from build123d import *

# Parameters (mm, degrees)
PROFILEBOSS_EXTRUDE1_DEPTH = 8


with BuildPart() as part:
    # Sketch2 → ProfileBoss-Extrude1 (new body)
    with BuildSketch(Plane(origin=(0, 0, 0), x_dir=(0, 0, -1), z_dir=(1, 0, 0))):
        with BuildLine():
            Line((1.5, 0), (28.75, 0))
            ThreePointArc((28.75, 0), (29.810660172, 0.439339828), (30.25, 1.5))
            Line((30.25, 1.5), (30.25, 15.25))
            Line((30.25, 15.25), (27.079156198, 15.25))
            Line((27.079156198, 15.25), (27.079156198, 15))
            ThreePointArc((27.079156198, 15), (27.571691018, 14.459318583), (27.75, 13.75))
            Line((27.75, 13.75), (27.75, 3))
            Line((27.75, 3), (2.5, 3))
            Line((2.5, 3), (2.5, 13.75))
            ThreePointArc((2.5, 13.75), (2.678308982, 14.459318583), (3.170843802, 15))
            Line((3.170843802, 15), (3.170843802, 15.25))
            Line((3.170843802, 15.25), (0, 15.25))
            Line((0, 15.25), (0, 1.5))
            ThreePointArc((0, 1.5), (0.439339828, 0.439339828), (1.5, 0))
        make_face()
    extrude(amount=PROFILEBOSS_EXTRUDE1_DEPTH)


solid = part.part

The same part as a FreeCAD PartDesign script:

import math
import FreeCAD as App
import Part
import Sketcher

V = App.Vector

doc = App.newDocument("Part")
body = doc.addObject("PartDesign::Body", "Body")

# Sketch on YZ plane
sketch1 = body.newObject("Sketcher::SketchObject", "Sketch")
sketch1.AttachmentSupport = (doc.getObject("YZ_Plane"), [""])
sketch1.MapMode = "FlatFace"
sketch1.addGeometry([
    Part.LineSegment(V(0, -1.5, 0), V(0, -28.75, 0)),  # 0
    Part.ArcOfCircle(Part.Circle(V(1.5, -28.75, 0), V(0, 0, 1), 1.5), math.radians(180), math.radians(270)),  # 1
    Part.LineSegment(V(1.5, -30.25, 0), V(15.25, -30.25, 0)),  # 2
    Part.LineSegment(V(15.25, -30.25, 0), V(15.25, -27.08, 0)),  # 3
    Part.LineSegment(V(15.25, -27.08, 0), V(15, -27.08, 0)),  # 4
    Part.ArcOfCircle(Part.Circle(V(13.75, -26.25, 0), V(0, 0, 1), 1.5), math.radians(-90), math.radians(-34)),  # 5
    Part.LineSegment(V(13.75, -27.75, 0), V(3, -27.75, 0)),  # 6
    Part.LineSegment(V(3, -27.75, 0), V(3, -2.5, 0)),  # 7
    Part.LineSegment(V(3, -2.5, 0), V(13.75, -2.5, 0)),  # 8
    Part.ArcOfCircle(Part.Circle(V(13.75, -4, 0), V(0, 0, 1), 1.5), math.radians(34), math.radians(90)),  # 9
    Part.LineSegment(V(15, -3.17, 0), V(15.25, -3.17, 0)),  # 10
    Part.LineSegment(V(15.25, -3.17, 0), V(15.25, 0, 0)),  # 11
    Part.LineSegment(V(15.25, 0, 0), V(1.5, 0, 0)),  # 12
    Part.ArcOfCircle(Part.Circle(V(1.5, -1.5, 0), V(0, 0, 1), 1.5), math.radians(90), math.radians(180)),  # 13
], False)
sketch1.addConstraint([
    Sketcher.Constraint("Tangent", 0, 2, 1, 1),
    Sketcher.Constraint("Tangent", 1, 2, 2, 1),
    Sketcher.Constraint("Coincident", 2, 2, 3, 1),
    Sketcher.Constraint("Coincident", 3, 2, 4, 1),
    Sketcher.Constraint("Coincident", 4, 2, 5, 2),
    Sketcher.Constraint("Tangent", 5, 1, 6, 1),
    Sketcher.Constraint("Coincident", 6, 2, 7, 1),
    Sketcher.Constraint("Coincident", 7, 2, 8, 1),
    Sketcher.Constraint("Tangent", 8, 2, 9, 2),
    Sketcher.Constraint("Coincident", 9, 1, 10, 1),
    Sketcher.Constraint("Coincident", 10, 2, 11, 1),
    Sketcher.Constraint("Coincident", 11, 2, 12, 1),
    Sketcher.Constraint("Tangent", 12, 2, 13, 1),
    Sketcher.Constraint("Tangent", 13, 2, 0, 1),
    Sketcher.Constraint("Vertical", 0),
    Sketcher.Constraint("Horizontal", 2),
    Sketcher.Constraint("Vertical", 3),
    Sketcher.Constraint("Horizontal", 4),
    Sketcher.Constraint("Horizontal", 6),
    Sketcher.Constraint("Vertical", 7),
    Sketcher.Constraint("Horizontal", 8),
    Sketcher.Constraint("Horizontal", 10),
    Sketcher.Constraint("Vertical", 11),
    Sketcher.Constraint("Horizontal", 12),
    Sketcher.Constraint("Equal", 1, 5),
    Sketcher.Constraint("Equal", 5, 9),
    Sketcher.Constraint("Equal", 9, 13),
    Sketcher.Constraint("PointOnObject", 0, 2, -2),
    Sketcher.Constraint("PointOnObject", 11, 2, -1),
    Sketcher.Constraint("Vertical", 5, 3, 9, 3),
    Sketcher.Constraint("Vertical", 4, 2, 9, 1),
    Sketcher.Constraint("Vertical", 3, 2, 10, 2),
    Sketcher.Constraint("Equal", 3, 11),
    Sketcher.Constraint("Radius", 1, 1.5),
    Sketcher.Constraint("DistanceY", 9, 3, -1, 1, 4.0),
    Sketcher.Constraint("DistanceX", -1, 1, 4, 2, 15.0),
    Sketcher.Constraint("DistanceX", -1, 1, 6, 2, 3.0),
    Sketcher.Constraint("DistanceX", 2, 1, 2, 2, 13.75),
    Sketcher.Constraint("DistanceX", 6, 2, 6, 1, 10.75),
    Sketcher.Constraint("DistanceY", 0, 2, 0, 1, 27.25),
])
pad1 = body.newObject("PartDesign::Pad", "Pad")
pad1.Profile = sketch1
pad1.Length = 8

doc.recompute()
